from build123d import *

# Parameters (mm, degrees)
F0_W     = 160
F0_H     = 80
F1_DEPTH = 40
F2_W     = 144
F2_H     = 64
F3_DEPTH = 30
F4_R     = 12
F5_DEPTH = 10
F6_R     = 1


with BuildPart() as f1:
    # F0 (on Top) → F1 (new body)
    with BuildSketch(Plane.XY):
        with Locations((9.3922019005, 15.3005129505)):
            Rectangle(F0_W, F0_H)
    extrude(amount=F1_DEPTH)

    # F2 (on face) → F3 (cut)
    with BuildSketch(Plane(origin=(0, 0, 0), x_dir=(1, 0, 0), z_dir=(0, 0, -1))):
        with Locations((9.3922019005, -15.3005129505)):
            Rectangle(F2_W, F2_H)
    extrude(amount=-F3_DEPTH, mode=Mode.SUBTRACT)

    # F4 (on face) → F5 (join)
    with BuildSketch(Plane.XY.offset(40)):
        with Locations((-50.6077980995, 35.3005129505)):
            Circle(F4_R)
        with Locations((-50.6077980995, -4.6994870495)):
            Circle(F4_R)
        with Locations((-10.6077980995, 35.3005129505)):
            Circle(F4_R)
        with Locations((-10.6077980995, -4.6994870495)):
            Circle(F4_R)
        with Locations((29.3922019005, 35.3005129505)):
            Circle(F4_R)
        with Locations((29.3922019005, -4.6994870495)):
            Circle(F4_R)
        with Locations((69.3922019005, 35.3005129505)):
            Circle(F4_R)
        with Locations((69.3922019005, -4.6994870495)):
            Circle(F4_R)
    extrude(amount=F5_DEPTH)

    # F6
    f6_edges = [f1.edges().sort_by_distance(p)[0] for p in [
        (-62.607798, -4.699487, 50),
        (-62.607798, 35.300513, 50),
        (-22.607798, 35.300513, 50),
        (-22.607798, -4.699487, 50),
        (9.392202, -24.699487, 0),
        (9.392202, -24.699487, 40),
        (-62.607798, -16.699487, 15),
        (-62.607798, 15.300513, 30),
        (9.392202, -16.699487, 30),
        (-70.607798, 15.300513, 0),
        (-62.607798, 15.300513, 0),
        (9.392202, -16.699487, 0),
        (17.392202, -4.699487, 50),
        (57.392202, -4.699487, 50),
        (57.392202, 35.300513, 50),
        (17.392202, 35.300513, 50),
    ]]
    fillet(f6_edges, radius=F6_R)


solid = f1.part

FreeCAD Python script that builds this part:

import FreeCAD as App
import Part
import Sketcher
from FreeCAD import Vector


def edges_at(feature, points):
    """Names of the edges that pass closest to the given points."""
    edges = feature.Shape.Edges
    near = lambda p: min(range(len(edges)), key=lambda i: edges[i].distToShape(Part.Vertex(*p))[0])
    return sorted({f"Edge{near(p) + 1}" for p in points})


def add_polygon(sketch, points):
    """Adds a closed chain of lines whose ends are joined by coincident constraints."""
    first, n = sketch.GeometryCount, len(points)
    for a, b in zip(points, points[1:] + points[:1]):
        sketch.addGeometry(Part.LineSegment(App.Vector(*a, 0), App.Vector(*b, 0)), False)
    for i in range(n):
        sketch.addConstraint(Sketcher.Constraint("Coincident", first + i, 2, first + (i + 1) % n, 1))

doc = App.newDocument("Part")
body = doc.addObject("PartDesign::Body", "Body")

# Sketch on XY plane
sketch1 = doc.addObject("Sketcher::SketchObject", "Sketch")
body.addObject(sketch1)
sketch1.AttachmentSupport = (doc.XY_Plane, [""])
sketch1.MapMode = "FlatFace"
add_polygon(sketch1, [(-71, 55), (-71, -25), (89, -25), (89, 55)])  # lines 0-3
sketch1.addConstraint([
    Sketcher.Constraint("Vertical", 0),
    Sketcher.Constraint("Horizontal", 1),
    Sketcher.Constraint("Vertical", 2),
    Sketcher.Constraint("Horizontal", 3),
    Sketcher.Constraint("DistanceX", 1, 1, 1, 2, 160.0),
    Sketcher.Constraint("DistanceY", 0, 2, 0, 1, 80.0),
    Sketcher.Constraint("DistanceX", 0, 2, -1, 1, 70.607798),
    Sketcher.Constraint("DistanceY", 0, 2, -1, 1, 24.699487),
])
pad1 = doc.addObject("PartDesign::Pad", "Pad")
body.addObject(pad1)
pad1.Profile = sketch1
pad1.Length = 40

# Sketch on XY plane
sketch2 = doc.addObject("Sketcher::SketchObject", "Sketch001")
body.addObject(sketch2)
sketch2.AttachmentSupport = (doc.XY_Plane, [""])
sketch2.MapMode = "FlatFace"
add_polygon(sketch2, [(-63, -17), (-63, 47), (81, 47), (81, -17)])  # lines 0-3
sketch2.addConstraint([
    Sketcher.Constraint("Vertical", 0),
    Sketcher.Constraint("Horizontal", 1),
    Sketcher.Constraint("Vertical", 2),
    Sketcher.Constraint("Horizontal", 3),
    Sketcher.Constraint("DistanceX", 1, 1, 1, 2, 144.0),
    Sketcher.Constraint("DistanceY", 0, 1, 0, 2, 64.0),
    Sketcher.Constraint("DistanceX", 0, 2, -1, 1, 62.607798),
    Sketcher.Constraint("DistanceY", -1, 1, 0, 2, 47.300513),
])
pocket1 = doc.addObject("PartDesign::Pocket", "Pocket")
body.addObject(pocket1)
pocket1.Profile = sketch2
pocket1.Length = 30
pocket1.Reversed = True

# Sketch on XY plane
sketch3 = doc.addObject("Sketcher::SketchObject", "Sketch002")
body.addObject(sketch3)
sketch3.AttachmentSupport = (doc.XY_Plane, [""])
sketch3.MapMode = "FlatFace"
sketch3.AttachmentOffset = App.Placement(Vector(0, 0, 40), App.Rotation())
sketch3.addGeometry([
    Part.Circle(Vector(-51, 35, 0), Vector(0, 0, 1), 12),  # 0
    Part.Circle(Vector(-51, -5, 0), Vector(0, 0, 1), 12),  # 1
    Part.Circle(Vector(-11, 35, 0), Vector(0, 0, 1), 12),  # 2
    Part.Circle(Vector(-11, -5, 0), Vector(0, 0, 1), 12),  # 3
    Part.Circle(Vector(29, 35, 0), Vector(0, 0, 1), 12),  # 4
    Part.Circle(Vector(29, -5, 0), Vector(0, 0, 1), 12),  # 5
    Part.Circle(Vector(69, 35, 0), Vector(0, 0, 1), 12),  # 6
    Part.Circle(Vector(69, -5, 0), Vector(0, 0, 1), 12),  # 7
], False)
sketch3.addConstraint([
    Sketcher.Constraint("Equal", 0, 1),
    Sketcher.Constraint("Equal", 1, 2),
    Sketcher.Constraint("Equal", 2, 3),
    Sketcher.Constraint("Equal", 3, 4),
    Sketcher.Constraint("Equal", 4, 5),
    Sketcher.Constraint("Equal", 5, 6),
    Sketcher.Constraint("Equal", 6, 7),
    Sketcher.Constraint("Horizontal", 0, 3, 2, 3),
    Sketcher.Constraint("Horizontal", 1, 3, 3, 3),
    Sketcher.Constraint("Horizontal", 2, 3, 4, 3),
    Sketcher.Constraint("Horizontal", 3, 3, 5, 3),
    Sketcher.Constraint("Horizontal", 4, 3, 6, 3),
    Sketcher.Constraint("Horizontal", 5, 3, 7, 3),
    Sketcher.Constraint("Vertical", 0, 3, 1, 3),
    Sketcher.Constraint("Vertical", 2, 3, 3, 3),
    Sketcher.Constraint("Vertical", 4, 3, 5, 3),
    Sketcher.Constraint("Vertical", 6, 3, 7, 3),
    Sketcher.Constraint("Diameter", 0, 24.0),
    Sketcher.Constraint("DistanceY", 1, 3, 0, 3, 40.0),
    Sketcher.Constraint("DistanceX", 0, 3, 2, 3, 40.0),
    Sketcher.Constraint("DistanceX", 2, 3, 4, 3, 40.0),
    Sketcher.Constraint("DistanceX", 4, 3, 6, 3, 40.0),
    Sketcher.Constraint("DistanceX", 0, 3, -1, 1, 50.607798),
    Sketcher.Constraint("DistanceY", -1, 1, 0, 3, 35.300513),
])
pad2 = doc.addObject("PartDesign::Pad", "Pad001")
body.addObject(pad2)
pad2.Profile = sketch3
pad2.Length = 10
doc.recompute()

fillet = doc.addObject("PartDesign::Fillet", "Fillet")
body.addObject(fillet)
fillet.Base = (pad2, edges_at(pad2, [
    (-62.608, -4.699, 50),
    (-62.608, 35.301, 50),
    (-22.608, 35.301, 50),
    (-22.608, -4.699, 50),
    (9.392, -24.699, 0),
    (9.392, -24.699, 40),
    (-62.608, -16.699, 15),
    (-62.608, 15.301, 30),
    (9.392, -16.699, 30),
    (-70.608, 15.301, 0),
    (-62.608, 15.301, 0),
    (9.392, -16.699, 0),
    (17.392, -4.699, 50),
    (57.392, -4.699, 50),
    (57.392, 35.301, 50),
    (17.392, 35.301, 50),
]))
fillet.Radius = 1

doc.recompute()
